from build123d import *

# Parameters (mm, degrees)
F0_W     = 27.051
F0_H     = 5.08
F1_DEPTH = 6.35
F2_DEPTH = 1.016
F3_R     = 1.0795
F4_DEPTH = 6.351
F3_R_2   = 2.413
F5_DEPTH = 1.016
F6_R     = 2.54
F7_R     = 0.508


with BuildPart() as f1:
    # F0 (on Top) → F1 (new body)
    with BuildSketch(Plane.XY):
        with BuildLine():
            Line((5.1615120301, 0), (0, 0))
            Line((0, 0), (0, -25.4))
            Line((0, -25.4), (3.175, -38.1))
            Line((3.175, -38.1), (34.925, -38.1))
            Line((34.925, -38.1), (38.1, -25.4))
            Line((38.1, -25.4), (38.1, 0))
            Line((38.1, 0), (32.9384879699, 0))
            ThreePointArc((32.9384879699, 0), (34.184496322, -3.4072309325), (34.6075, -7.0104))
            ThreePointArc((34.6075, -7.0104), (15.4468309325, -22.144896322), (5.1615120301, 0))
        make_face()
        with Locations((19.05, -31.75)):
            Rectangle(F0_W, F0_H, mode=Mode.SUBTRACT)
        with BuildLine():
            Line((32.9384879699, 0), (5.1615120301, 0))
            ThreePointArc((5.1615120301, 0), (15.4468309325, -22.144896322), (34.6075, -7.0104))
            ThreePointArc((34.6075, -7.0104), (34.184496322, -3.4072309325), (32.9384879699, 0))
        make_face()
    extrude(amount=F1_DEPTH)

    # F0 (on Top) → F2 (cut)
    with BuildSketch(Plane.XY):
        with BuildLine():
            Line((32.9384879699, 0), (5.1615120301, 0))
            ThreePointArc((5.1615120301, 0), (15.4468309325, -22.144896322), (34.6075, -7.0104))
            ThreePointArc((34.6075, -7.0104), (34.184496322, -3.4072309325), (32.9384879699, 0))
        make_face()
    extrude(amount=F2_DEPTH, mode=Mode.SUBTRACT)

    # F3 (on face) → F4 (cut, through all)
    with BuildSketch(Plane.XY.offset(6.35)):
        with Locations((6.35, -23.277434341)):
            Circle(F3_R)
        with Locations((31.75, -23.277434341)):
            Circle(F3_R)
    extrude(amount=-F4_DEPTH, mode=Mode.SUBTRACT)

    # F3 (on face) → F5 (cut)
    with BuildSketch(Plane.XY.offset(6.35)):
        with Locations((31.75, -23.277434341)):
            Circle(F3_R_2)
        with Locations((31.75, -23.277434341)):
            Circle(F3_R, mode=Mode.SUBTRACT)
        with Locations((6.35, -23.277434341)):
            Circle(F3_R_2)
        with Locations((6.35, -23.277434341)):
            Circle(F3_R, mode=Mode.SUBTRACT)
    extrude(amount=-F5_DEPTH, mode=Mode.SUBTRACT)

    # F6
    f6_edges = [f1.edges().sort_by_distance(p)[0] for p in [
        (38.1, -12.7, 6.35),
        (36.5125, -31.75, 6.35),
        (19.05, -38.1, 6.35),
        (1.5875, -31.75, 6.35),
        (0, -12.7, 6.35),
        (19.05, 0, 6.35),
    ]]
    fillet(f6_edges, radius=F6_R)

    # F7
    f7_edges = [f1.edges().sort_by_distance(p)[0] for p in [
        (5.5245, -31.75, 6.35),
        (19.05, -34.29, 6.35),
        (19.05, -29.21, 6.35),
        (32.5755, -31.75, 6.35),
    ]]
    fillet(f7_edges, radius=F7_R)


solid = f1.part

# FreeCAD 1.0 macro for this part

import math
import FreeCAD as App
import Part
import Sketcher
from FreeCAD import Vector
Q = App.Units.Quantity


def edges_at(feature, points):
    """Names of the edges that pass closest to the given points."""
    edges = feature.Shape.Edges
    near = lambda p: min(range(len(edges)), key=lambda i: edges[i].distToShape(Part.Vertex(*p))[0])
    return sorted({f"Edge{near(p) + 1}" for p in points})


def add_polygon(sketch, points):
    """Adds a closed chain of lines whose ends are joined by coincident constraints."""
    first, n = sketch.GeometryCount, len(points)
    for a, b in zip(points, points[1:] + points[:1]):
        sketch.addGeometry(Part.LineSegment(App.Vector(*a, 0), App.Vector(*b, 0)), False)
    for i in range(n):
        sketch.addConstraint(Sketcher.Constraint("Coincident", first + i, 2, first + (i + 1) % n, 1))

doc = App.newDocument("Part")
body = doc.addObject("PartDesign::Body", "Body")

# Sketch on XY plane
sketch1 = body.newObject("Sketcher::SketchObject", "Sketch")
sketch1.AttachmentSupport = (doc.getObject("XY_Plane"), [""])
sketch1.MapMode = "FlatFace"
add_polygon(sketch1, [(0, 0), (0, -25), (3, -38), (35, -38), (38, -25), (38, 0)])  # lines 0-5
add_polygon(sketch1, [(33, -34), (6, -34), (6, -29), (33, -29)])  # lines 6-9
sketch1.addConstraint(Sketcher.Constraint("Vertical", 0))
sketch1.addConstraint(Sketcher.Constraint("Horizontal", 2))
sketch1.addConstraint(Sketcher.Constraint("Vertical", 4))
sketch1.addConstraint(Sketcher.Constraint("Horizontal", 5))
sketch1.addConstraint(Sketcher.Constraint("Horizontal", 6))
sketch1.addConstraint(Sketcher.Constraint("Vertical", 7))
sketch1.addConstraint(Sketcher.Constraint("Horizontal", 8))
sketch1.addConstraint(Sketcher.Constraint("Vertical", 9))
sketch1.addConstraint(Sketcher.Constraint("Coincident", 5, 2, -1, 1))
sketch1.addConstraint(Sketcher.Constraint("Horizontal", 0, 2, 3, 2))
sketch1.addConstraint(Sketcher.Constraint("Equal", 1, 3))
sketch1.addConstraint(Sketcher.Constraint("DistanceY", 0, 2, 0, 1, Q("1 in")))
sketch1.addConstraint(Sketcher.Constraint("DistanceX", 5, 2, 5, 1, Q("1.5 in")))
sketch1.addConstraint(Sketcher.Constraint("DistanceY", 7, 1, 7, 2, Q("0.2 in")))
sketch1.addConstraint(Sketcher.Constraint("DistanceX", 2, 1, 2, 2, Q("1.25 in")))
sketch1.addConstraint(Sketcher.Constraint("DistanceY", 1, 2, -1, 1, Q("1.5 in")))
sketch1.addConstraint(Sketcher.Constraint("DistanceX", 6, 2, 6, 1, Q("1.065 in")))
sketch1.addConstraint(Sketcher.Constraint("DistanceY", 6, 2, -1, 1, Q("1.35 in")))
sketch1.addConstraint(Sketcher.Constraint("DistanceX", -1, 1, 6, 2, Q("0.2175 in")))
pad1 = body.newObject("PartDesign::Pad", "Pad")
pad1.Profile = sketch1
pad1.Length = Q("0.25 in")

# Sketch on XY plane
sketch2 = body.newObject("Sketcher::SketchObject", "Sketch001")
sketch2.AttachmentSupport = (doc.getObject("XY_Plane"), [""])
sketch2.MapMode = "FlatFace"
sketch2.addGeometry(Part.LineSegment(Vector(33, 0, 0), Vector(5, 0, 0)), False)
sketch2.addGeometry(Part.ArcOfCircle(Part.Circle(Vector(19, -7, 0), Vector(0, 0, 1), 16), math.radians(153), math.radians(360)), False)
sketch2.addGeometry(Part.ArcOfCircle(Part.Circle(Vector(19, -7, 0), Vector(0, 0, 1), 16), math.radians(0), math.radians(27)), False)
sketch2.addConstraint(Sketcher.Constraint("Coincident", 0, 2, 1, 1))
sketch2.addConstraint(Sketcher.Constraint("Tangent", 1, 2, 2, 1))
sketch2.addConstraint(Sketcher.Constraint("Coincident", 2, 2, 0, 1))
sketch2.addConstraint(Sketcher.Constraint("Horizontal", 0))
sketch2.addConstraint(Sketcher.Constraint("Equal", 1, 2))
sketch2.addConstraint(Sketcher.Constraint("PointOnObject", 0, 2, -1))
sketch2.addConstraint(Sketcher.Constraint("Horizontal", 2, 3, 1, 2))
sketch2.addConstraint(Sketcher.Constraint("Radius", 1, Q("0.6125 in")))
sketch2.addConstraint(Sketcher.Constraint("DistanceX", -1, 1, 1, 3, Q("0.75 in")))
sketch2.addConstraint(Sketcher.Constraint("DistanceY", 1, 3, -1, 1, Q("0.276 in")))
pocket1 = body.newObject("PartDesign::Pocket", "Pocket")
pocket1.Profile = sketch2
pocket1.Length = Q("0.04 in")
pocket1.Reversed = True

# Sketch on XY plane
sketch3 = body.newObject("Sketcher::SketchObject", "Sketch002")
sketch3.AttachmentSupport = (doc.getObject("XY_Plane"), [""])
sketch3.MapMode = "FlatFace"
sketch3.AttachmentOffset = App.Placement(Vector(0, 0, 0.25 * 25.4), App.Rotation())
sketch3.addGeometry(Part.Circle(Vector(6.3, -23.3, 0), Vector(0, 0, 1), 1.1), False)
sketch3.addGeometry(Part.Circle(Vector(31.8, -23.3, 0), Vector(0, 0, 1), 1.1), False)
sketch3.addConstraint(Sketcher.Constraint("Equal", 0, 1))
sketch3.addConstraint(Sketcher.Constraint("Horizontal", 0, 3, 1, 3))
sketch3.addConstraint(Sketcher.Constraint("Diameter", 0, Q("0.085 in")))
sketch3.addConstraint(Sketcher.Constraint("DistanceX", 0, 3, 1, 3, Q("1 in")))
sketch3.addConstraint(Sketcher.Constraint("DistanceX", -1, 1, 0, 3, Q("0.25 in")))
sketch3.addConstraint(Sketcher.Constraint("DistanceY", 0, 3, -1, 1, 23.277434))
pocket2 = body.newObject("PartDesign::Pocket", "Pocket001")
pocket2.Profile = sketch3
pocket2.Type = "ThroughAll"

# Sketch on XY plane
sketch4 = body.newObject("Sketcher::SketchObject", "Sketch003")
sketch4.AttachmentSupport = (doc.getObject("XY_Plane"), [""])
sketch4.MapMode = "FlatFace"
sketch4.AttachmentOffset = App.Placement(Vector(0, 0, 0.25 * 25.4), App.Rotation())
sketch4.addGeometry(Part.Circle(Vector(31.8, -23.3, 0), Vector(0, 0, 1), 2.4), False)
sketch4.addGeometry(Part.Circle(Vector(31.8, -23.3, 0), Vector(0, 0, 1), 1.1), False)
sketch4.addGeometry(Part.Circle(Vector(6.3, -23.3, 0), Vector(0, 0, 1), 2.4), False)
sketch4.addGeometry(Part.Circle(Vector(6.3, -23.3, 0), Vector(0, 0, 1), 1.1), False)
sketch4.addConstraint(Sketcher.Constraint("Coincident", 1, 3, 0, 3))
sketch4.addConstraint(Sketcher.Constraint("Coincident", 3, 3, 2, 3))
sketch4.addConstraint(Sketcher.Constraint("Equal", 0, 2))
sketch4.addConstraint(Sketcher.Constraint("Equal", 1, 3))
sketch4.addConstraint(Sketcher.Constraint("Horizontal", 1, 3, 2, 3))
sketch4.addConstraint(Sketcher.Constraint("Diameter", 0, Q("0.19 in")))
sketch4.addConstraint(Sketcher.Constraint("Diameter", 1, Q("0.085 in")))
sketch4.addConstraint(Sketcher.Constraint("DistanceX", 2, 3, 0, 3, Q("1 in")))
sketch4.addConstraint(Sketcher.Constraint("DistanceX", -1, 1, 0, 3, Q("1.25 in")))
sketch4.addConstraint(Sketcher.Constraint("DistanceY", 0, 3, -1, 1, 23.277434))
pocket3 = body.newObject("PartDesign::Pocket", "Pocket002")
pocket3.Profile = sketch4
pocket3.Length = Q("0.04 in")
doc.recompute()

fillet = body.newObject("PartDesign::Fillet", "Fillet")
fillet.Base = (pocket3, edges_at(pocket3, [
    (38.1, -12.7, 6.35),
    (36.513, -31.75, 6.35),
    (19.05, -38.1, 6.35),
    (1.587, -31.75, 6.35),
    (0, -12.7, 6.35),
    (19.05, 0, 6.35),
]))
fillet.Radius = Q("0.1 in")
doc.recompute()

fillet2 = body.newObject("PartDesign::Fillet", "Fillet001")
fillet2.Base = (fillet, edges_at(fillet, [
    (5.524, -31.75, 6.35),
    (19.05, -34.29, 6.35),
    (19.05, -29.21, 6.35),
    (32.575, -31.75, 6.35),
]))
fillet2.Radius = Q("0.02 in")

doc.recompute()
